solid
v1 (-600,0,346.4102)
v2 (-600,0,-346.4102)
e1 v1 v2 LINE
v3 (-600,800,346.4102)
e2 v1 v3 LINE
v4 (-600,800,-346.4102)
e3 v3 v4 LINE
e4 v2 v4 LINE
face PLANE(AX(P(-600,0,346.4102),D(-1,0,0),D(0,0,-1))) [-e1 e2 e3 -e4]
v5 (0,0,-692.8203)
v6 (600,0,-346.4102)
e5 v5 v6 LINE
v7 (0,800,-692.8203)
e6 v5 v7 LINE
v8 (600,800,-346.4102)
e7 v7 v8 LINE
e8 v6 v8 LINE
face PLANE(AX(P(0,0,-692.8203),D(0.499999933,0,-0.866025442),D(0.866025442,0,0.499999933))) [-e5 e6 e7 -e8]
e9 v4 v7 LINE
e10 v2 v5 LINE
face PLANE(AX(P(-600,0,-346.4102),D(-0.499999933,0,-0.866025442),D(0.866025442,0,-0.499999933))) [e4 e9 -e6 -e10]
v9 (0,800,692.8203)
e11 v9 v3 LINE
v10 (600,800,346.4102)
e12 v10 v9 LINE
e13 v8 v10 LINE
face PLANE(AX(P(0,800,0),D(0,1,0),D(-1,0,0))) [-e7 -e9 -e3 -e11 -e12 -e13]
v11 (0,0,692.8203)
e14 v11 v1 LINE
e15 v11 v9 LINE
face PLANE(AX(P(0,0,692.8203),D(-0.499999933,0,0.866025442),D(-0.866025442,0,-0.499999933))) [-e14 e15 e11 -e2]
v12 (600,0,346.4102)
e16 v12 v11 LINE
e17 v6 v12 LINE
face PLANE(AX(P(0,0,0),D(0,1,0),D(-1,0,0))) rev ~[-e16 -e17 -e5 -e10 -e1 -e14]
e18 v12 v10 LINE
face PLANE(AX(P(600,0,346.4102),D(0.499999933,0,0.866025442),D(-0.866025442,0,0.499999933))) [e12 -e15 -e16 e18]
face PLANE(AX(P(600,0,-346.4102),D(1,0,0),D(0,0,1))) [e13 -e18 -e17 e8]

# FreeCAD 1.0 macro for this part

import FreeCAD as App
import Part
import Sketcher
Q = App.Units.Quantity


def add_polygon(sketch, points):
    """Adds a closed chain of lines whose ends are joined by coincident constraints."""
    first, n = sketch.GeometryCount, len(points)
    for a, b in zip(points, points[1:] + points[:1]):
        sketch.addGeometry(Part.LineSegment(App.Vector(*a, 0), App.Vector(*b, 0)), False)
    for i in range(n):
        sketch.addConstraint(Sketcher.Constraint("Coincident", first + i, 2, first + (i + 1) % n, 1))

doc = App.newDocument("Part")
params = doc.addObject("Spreadsheet::Sheet", "Params")
for row, (alias, value) in enumerate([
    ("pad1_length", "800 mm"),
], start=1):
    params.set(f"A{row}", alias)
    params.set(f"B{row}", "=" + value)
    params.setAlias(f"B{row}", alias)

body = doc.addObject("PartDesign::Body", "Body")

sketch1 = body.newObject("Sketcher::SketchObject", "Sketch")
sketch1.AttachmentSupport = (doc.getObject("XZ_Plane"), [""])
sketch1.MapMode = "FlatFace"
add_polygon(sketch1, [(600, -346.4102), (0, -692.8203), (-600, -346.4102), (-600, 346.4102), (0, 692.8203), (600, 346.4102)])
sketch1.addConstraint(Sketcher.Constraint("Vertical", 2))
sketch1.addConstraint(Sketcher.Constraint("Vertical", 5))
sketch1.addConstraint(Sketcher.Constraint("Symmetric", 0, 2, 3, 2, -1, 1))
sketch1.addConstraint(Sketcher.Constraint("Symmetric", 1, 2, 4, 2, -1, 1))
sketch1.addConstraint(Sketcher.Constraint("PointOnObject", 0, 2, -2))
sketch1.addConstraint(Sketcher.Constraint("Parallel", 0, 3))
sketch1.addConstraint(Sketcher.Constraint("Horizontal", 2, 2, 4, 2))
sketch1.addConstraint(Sketcher.Constraint("DistanceX", 2, 2, 4, 2, 1200.0))
sketch1.addConstraint(Sketcher.Constraint("Angle", 0, Q("-150 deg")))
sketch1.addConstraint(Sketcher.Constraint("DistanceY", 2, 1, 2, 2, 692.8204))
pad1 = body.newObject("PartDesign::Pad", "Pad")
pad1.Profile = sketch1
pad1.setExpression("Length", "Params.pad1_length")
pad1.Reversed = True

doc.recompute()
